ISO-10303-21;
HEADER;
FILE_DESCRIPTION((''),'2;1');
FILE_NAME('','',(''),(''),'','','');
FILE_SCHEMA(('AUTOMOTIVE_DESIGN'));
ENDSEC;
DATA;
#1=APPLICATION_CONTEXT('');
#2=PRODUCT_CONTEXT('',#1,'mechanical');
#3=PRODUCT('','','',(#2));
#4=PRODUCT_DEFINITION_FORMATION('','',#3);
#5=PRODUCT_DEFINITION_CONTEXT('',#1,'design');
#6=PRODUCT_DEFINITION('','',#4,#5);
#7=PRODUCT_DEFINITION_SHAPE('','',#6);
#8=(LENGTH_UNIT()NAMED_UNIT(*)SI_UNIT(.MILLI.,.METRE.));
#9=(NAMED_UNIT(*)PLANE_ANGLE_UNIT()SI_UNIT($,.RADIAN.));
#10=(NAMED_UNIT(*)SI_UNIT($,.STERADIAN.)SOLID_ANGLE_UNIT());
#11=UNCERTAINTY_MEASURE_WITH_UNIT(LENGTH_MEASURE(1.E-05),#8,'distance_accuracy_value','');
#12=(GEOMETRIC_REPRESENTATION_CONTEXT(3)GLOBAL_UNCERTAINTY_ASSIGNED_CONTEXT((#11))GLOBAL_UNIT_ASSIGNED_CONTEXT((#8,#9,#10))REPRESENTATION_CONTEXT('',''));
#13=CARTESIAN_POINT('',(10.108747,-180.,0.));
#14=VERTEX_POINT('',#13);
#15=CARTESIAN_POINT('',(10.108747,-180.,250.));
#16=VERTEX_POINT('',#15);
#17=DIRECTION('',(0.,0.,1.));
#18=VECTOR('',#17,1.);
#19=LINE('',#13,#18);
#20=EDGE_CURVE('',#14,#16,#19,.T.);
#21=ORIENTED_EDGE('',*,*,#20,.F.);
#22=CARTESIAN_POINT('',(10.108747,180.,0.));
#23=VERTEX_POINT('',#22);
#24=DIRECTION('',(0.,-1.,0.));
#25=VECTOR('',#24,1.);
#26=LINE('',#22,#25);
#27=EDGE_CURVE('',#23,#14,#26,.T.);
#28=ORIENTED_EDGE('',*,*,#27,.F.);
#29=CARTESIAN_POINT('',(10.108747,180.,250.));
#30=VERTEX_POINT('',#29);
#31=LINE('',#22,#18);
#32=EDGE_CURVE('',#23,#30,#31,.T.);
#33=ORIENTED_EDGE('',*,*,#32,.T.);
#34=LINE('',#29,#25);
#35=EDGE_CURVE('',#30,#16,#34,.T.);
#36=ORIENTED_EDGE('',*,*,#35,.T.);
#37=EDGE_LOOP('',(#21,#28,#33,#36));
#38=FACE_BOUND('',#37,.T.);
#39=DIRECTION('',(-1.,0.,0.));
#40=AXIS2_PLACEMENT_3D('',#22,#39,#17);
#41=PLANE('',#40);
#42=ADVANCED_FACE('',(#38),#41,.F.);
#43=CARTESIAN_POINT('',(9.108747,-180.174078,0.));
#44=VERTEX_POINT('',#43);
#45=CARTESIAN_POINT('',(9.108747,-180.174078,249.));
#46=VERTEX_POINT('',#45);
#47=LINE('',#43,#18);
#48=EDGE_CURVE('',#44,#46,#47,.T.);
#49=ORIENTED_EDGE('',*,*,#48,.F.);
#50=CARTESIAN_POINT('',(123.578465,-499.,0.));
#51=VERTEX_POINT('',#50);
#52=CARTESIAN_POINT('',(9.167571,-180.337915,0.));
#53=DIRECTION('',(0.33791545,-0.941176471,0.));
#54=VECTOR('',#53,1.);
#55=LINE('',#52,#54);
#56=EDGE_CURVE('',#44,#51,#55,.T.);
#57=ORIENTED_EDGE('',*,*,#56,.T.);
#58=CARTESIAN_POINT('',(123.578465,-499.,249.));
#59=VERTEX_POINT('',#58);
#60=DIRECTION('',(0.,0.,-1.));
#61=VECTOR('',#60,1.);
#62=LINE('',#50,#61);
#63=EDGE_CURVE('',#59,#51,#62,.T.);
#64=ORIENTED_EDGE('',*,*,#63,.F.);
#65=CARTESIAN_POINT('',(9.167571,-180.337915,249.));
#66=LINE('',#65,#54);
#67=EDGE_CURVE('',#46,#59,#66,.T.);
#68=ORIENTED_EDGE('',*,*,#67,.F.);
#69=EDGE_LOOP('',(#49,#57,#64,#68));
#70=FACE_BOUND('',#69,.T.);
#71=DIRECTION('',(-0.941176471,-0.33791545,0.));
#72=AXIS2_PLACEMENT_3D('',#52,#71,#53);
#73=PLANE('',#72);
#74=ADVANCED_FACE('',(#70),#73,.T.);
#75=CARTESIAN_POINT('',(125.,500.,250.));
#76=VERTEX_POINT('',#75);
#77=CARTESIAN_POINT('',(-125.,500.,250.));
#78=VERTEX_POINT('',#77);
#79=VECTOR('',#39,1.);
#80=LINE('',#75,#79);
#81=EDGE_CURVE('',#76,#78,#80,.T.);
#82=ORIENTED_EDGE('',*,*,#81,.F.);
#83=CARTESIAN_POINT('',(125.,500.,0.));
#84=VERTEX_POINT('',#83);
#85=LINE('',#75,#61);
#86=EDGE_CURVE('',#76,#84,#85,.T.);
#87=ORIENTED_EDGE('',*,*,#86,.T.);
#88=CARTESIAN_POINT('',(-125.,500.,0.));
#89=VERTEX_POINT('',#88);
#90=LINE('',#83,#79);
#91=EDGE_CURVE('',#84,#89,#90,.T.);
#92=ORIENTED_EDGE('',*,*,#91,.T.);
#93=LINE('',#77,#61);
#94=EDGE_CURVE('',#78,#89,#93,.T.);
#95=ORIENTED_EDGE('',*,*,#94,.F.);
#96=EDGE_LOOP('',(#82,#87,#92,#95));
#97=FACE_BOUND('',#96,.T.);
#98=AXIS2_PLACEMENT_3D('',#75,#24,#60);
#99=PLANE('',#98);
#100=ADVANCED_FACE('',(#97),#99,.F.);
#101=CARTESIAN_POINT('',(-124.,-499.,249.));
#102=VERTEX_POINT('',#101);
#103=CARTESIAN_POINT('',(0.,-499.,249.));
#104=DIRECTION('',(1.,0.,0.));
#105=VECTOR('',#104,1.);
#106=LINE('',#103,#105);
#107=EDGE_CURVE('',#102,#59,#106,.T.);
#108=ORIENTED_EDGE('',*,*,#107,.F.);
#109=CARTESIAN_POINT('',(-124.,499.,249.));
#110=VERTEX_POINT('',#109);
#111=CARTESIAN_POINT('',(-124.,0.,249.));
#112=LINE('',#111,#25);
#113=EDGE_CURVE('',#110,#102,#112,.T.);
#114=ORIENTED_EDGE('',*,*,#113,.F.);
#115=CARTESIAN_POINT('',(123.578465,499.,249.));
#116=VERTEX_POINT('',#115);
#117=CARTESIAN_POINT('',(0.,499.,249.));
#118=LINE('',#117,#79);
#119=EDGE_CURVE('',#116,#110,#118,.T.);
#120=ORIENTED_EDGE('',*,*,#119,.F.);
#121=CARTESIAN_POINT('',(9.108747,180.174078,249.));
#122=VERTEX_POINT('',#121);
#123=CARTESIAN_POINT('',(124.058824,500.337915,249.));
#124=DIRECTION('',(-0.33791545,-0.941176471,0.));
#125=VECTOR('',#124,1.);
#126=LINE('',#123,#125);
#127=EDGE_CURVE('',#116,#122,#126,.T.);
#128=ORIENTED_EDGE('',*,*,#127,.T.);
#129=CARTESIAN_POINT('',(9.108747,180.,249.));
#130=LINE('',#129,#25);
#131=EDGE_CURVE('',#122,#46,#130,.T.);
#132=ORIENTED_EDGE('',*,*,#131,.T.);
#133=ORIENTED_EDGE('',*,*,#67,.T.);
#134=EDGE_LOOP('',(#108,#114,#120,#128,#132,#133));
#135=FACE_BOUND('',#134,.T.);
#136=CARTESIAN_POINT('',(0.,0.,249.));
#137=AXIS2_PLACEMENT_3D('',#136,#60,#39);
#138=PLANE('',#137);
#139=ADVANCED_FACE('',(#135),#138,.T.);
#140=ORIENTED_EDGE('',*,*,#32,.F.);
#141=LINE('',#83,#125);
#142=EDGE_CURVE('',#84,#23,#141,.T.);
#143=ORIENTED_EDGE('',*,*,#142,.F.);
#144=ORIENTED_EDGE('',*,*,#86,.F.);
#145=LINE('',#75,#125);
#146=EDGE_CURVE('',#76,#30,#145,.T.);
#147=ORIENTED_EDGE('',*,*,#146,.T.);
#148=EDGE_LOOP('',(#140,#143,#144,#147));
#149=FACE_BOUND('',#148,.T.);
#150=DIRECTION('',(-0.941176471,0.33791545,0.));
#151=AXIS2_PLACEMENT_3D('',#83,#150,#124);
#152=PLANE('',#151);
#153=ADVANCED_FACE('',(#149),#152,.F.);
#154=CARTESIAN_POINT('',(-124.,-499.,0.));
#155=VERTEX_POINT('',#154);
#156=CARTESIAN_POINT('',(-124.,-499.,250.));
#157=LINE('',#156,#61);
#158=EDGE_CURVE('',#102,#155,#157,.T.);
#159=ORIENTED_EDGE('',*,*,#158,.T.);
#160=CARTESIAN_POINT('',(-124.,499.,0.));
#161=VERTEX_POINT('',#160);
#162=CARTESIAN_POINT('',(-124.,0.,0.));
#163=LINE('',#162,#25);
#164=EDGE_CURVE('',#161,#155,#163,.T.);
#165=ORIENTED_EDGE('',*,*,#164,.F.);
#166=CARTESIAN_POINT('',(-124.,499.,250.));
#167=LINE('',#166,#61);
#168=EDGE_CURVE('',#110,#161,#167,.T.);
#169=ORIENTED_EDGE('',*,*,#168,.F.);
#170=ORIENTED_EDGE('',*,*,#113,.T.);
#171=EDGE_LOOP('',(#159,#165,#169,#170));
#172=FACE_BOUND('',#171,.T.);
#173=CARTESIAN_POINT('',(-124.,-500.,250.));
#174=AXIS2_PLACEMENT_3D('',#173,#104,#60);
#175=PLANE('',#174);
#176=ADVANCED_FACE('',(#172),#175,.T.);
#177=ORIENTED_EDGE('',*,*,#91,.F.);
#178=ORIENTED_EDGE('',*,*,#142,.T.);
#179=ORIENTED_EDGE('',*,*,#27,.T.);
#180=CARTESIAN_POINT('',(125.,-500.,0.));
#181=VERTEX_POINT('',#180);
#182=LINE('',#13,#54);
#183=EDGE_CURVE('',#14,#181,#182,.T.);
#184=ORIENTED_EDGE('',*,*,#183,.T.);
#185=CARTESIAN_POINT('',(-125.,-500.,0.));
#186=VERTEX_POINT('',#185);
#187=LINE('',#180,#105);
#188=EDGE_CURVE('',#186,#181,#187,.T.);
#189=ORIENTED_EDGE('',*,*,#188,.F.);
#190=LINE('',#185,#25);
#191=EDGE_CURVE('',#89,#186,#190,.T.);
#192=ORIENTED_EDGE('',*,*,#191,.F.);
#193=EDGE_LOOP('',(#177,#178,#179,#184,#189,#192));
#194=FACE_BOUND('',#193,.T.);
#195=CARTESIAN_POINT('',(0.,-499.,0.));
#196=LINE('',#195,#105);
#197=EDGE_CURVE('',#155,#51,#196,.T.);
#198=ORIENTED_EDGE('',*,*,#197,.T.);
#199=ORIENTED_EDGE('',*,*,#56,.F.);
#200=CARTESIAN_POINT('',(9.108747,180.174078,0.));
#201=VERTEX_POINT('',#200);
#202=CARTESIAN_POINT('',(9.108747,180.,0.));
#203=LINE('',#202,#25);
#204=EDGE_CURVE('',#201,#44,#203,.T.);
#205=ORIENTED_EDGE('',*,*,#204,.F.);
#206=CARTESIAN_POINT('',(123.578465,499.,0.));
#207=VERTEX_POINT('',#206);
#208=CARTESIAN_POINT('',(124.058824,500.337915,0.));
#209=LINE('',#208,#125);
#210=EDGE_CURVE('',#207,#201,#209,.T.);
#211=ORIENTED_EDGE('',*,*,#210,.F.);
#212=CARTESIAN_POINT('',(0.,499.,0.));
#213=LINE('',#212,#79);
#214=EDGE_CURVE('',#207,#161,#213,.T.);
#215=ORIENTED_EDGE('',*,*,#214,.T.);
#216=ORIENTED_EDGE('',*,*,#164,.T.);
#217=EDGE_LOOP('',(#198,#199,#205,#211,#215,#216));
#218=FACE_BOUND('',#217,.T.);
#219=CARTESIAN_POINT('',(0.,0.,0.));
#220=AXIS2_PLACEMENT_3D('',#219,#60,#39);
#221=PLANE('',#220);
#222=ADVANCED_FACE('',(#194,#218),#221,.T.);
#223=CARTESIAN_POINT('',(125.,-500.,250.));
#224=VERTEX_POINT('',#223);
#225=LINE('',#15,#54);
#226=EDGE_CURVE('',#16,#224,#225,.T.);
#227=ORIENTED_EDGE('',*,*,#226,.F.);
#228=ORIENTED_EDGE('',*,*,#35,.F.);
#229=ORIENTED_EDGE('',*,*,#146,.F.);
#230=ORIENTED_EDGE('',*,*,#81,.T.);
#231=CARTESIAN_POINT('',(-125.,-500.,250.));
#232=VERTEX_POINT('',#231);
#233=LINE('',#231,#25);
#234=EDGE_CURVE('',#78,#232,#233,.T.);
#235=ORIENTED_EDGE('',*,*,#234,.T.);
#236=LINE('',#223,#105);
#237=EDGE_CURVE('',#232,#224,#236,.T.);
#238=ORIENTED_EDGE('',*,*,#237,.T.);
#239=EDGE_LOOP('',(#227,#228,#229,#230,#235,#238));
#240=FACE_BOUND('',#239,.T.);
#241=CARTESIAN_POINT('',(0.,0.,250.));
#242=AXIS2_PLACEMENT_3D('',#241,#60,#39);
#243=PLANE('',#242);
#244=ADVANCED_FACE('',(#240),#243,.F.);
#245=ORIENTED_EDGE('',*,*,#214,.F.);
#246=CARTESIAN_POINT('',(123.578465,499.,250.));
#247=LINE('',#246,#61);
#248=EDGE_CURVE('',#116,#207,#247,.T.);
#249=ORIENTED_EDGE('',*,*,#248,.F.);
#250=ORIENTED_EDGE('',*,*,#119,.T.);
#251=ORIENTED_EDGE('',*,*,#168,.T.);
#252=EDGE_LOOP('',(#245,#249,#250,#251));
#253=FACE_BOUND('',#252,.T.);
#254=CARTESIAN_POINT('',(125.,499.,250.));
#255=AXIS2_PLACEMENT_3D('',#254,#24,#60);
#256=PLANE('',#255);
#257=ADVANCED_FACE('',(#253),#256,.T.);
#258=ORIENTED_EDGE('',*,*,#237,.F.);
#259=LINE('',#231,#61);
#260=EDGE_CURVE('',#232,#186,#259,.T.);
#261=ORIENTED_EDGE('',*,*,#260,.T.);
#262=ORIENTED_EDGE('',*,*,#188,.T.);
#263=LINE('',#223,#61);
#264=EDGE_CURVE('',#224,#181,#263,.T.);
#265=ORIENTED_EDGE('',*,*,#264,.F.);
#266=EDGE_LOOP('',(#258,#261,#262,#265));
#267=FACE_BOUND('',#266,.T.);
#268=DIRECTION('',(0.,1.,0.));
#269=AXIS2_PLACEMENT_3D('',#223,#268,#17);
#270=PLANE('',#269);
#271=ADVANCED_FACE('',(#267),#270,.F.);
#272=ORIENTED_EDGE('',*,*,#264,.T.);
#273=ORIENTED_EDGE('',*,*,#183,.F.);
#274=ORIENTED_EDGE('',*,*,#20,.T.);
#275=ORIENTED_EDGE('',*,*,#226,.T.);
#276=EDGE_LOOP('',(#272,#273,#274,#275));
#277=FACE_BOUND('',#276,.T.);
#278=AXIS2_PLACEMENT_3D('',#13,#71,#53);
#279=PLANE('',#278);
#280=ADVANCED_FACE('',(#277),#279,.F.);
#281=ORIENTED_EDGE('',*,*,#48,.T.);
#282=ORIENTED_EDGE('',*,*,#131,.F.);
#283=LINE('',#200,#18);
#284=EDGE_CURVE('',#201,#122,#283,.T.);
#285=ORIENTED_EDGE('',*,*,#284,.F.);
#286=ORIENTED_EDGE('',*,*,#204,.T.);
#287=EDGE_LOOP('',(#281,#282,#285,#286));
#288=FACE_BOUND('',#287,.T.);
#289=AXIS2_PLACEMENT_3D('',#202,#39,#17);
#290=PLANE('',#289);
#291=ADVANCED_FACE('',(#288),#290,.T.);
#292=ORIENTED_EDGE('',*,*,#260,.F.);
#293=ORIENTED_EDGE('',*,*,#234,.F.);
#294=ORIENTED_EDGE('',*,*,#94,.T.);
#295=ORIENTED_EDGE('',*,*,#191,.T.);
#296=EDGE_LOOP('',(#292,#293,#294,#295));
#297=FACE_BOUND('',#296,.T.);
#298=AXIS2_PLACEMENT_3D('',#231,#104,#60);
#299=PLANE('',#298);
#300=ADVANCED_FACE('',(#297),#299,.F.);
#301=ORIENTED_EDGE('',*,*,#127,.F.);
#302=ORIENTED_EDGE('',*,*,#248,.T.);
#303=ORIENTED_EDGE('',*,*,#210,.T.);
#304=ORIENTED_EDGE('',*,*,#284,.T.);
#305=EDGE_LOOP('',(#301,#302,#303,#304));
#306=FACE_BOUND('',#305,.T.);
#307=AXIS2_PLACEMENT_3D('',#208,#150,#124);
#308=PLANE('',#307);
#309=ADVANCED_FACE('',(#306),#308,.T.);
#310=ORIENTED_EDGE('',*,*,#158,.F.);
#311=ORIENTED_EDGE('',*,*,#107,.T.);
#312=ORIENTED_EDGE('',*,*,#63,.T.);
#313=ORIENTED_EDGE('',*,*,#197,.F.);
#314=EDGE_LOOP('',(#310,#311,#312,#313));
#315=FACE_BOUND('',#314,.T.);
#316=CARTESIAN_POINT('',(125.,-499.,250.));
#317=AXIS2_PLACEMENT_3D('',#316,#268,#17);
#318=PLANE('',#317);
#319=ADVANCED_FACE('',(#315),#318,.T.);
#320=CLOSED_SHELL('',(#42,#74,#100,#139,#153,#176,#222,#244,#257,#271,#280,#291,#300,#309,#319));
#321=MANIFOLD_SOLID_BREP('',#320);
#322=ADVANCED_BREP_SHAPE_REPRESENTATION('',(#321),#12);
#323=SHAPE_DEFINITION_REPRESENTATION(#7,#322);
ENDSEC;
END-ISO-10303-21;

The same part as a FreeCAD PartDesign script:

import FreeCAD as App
import Part
import Sketcher


def faces_at(feature, points):
    """Names of the faces that lie closest to the given points."""
    faces = feature.Shape.Faces
    near = lambda p: min(range(len(faces)), key=lambda i: faces[i].distToShape(Part.Vertex(*p))[0])
    return sorted({f"Face{near(p) + 1}" for p in points})

doc = App.newDocument("Part")
params = doc.addObject("Spreadsheet::Sheet", "Params")
for row, (alias, value) in enumerate([
    ("sketch1_width", "250 mm"),
    ("sketch1_height", "1000 mm"),
    ("pad1_length", "250 mm"),
    ("sketch2_height", "360 mm"),
    ("sketch2_height2", "1000 mm"),
    ("sketch2_length", "340 mm"),
    ("thickness_wall", "1 mm"),
], start=1):
    params.set(f"A{row}", alias)
    params.set(f"B{row}", "=" + value)
    params.setAlias(f"B{row}", alias)

body = doc.addObject("PartDesign::Body", "Body")

# Sketch on XY plane
sketch1 = body.newObject("Sketcher::SketchObject", "Sketch")
sketch1.AttachmentSupport = (doc.getObject("XY_Plane"), [""])
sketch1.MapMode = "FlatFace"
sketch1.addGeometry([
    Part.LineSegment(App.Vector(-125, -500, 0), App.Vector(125, -500, 0)),
    Part.LineSegment(App.Vector(125, -500, 0), App.Vector(125, 500, 0)),
    Part.LineSegment(App.Vector(125, 500, 0), App.Vector(-125, 500, 0)),
    Part.LineSegment(App.Vector(-125, 500, 0), App.Vector(-125, -500, 0)),
], False)
sketch1.addConstraint([
    Sketcher.Constraint("Coincident", 0, 2, 1, 1),
    Sketcher.Constraint("Coincident", 1, 2, 2, 1),
    Sketcher.Constraint("Coincident", 2, 2, 3, 1),
    Sketcher.Constraint("Coincident", 3, 2, 0, 1),
    Sketcher.Constraint("Horizontal", 0),
    Sketcher.Constraint("Vertical", 1),
    Sketcher.Constraint("Horizontal", 2),
    Sketcher.Constraint("Vertical", 3),
    Sketcher.Constraint("Symmetric", 0, 2, 2, 2, -1, 1),
    Sketcher.Constraint("DistanceX", 0, 1, 0, 2, 250.0),
    Sketcher.Constraint("DistanceY", 1, 1, 1, 2, 1000.0),
])
sketch1.setExpression("Constraints[9]", "Params.sketch1_width")
sketch1.setExpression("Constraints[10]", "Params.sketch1_height")
pad1 = body.newObject("PartDesign::Pad", "Pad")
pad1.Profile = sketch1
pad1.setExpression("Length", "Params.pad1_length")

# Sketch on XY plane
sketch2 = body.newObject("Sketcher::SketchObject", "Sketch001")
sketch2.AttachmentSupport = (doc.getObject("XY_Plane"), [""])
sketch2.MapMode = "FlatFace"
sketch2.AttachmentOffset = App.Placement(App.Vector(0, 0, 250), App.Rotation())
sketch2.addGeometry([
    Part.LineSegment(App.Vector(125, 500, 0), App.Vector(10, 180, 0)),
    Part.LineSegment(App.Vector(10, 180, 0), App.Vector(10, -180, 0)),
    Part.LineSegment(App.Vector(10, -180, 0), App.Vector(125, -500, 0)),
    Part.LineSegment(App.Vector(125, -500, 0), App.Vector(125, 500, 0)),
], False)
sketch2.addConstraint([
    Sketcher.Constraint("Coincident", 0, 2, 1, 1),
    Sketcher.Constraint("Coincident", 1, 2, 2, 1),
    Sketcher.Constraint("Coincident", 2, 2, 3, 1),
    Sketcher.Constraint("Coincident", 3, 2, 0, 1),
    Sketcher.Constraint("Vertical", 1),
    Sketcher.Constraint("Vertical", 3),
    Sketcher.Constraint("Equal", 0, 2),
    Sketcher.Constraint("DistanceY", 1, 2, 1, 1, 360.0),
    Sketcher.Constraint("DistanceY", 3, 1, 3, 2, 1000.0),
    Sketcher.Constraint("Distance", 0, 340.0),
    Sketcher.Constraint("DistanceY", -1, 1, 0, 2, 180.0),
    Sketcher.Constraint("DistanceX", -1, 1, 2, 2, 125.0),
])
sketch2.setExpression("Constraints[7]", "Params.sketch2_height")
sketch2.setExpression("Constraints[8]", "Params.sketch2_height2")
sketch2.setExpression("Constraints[9]", "Params.sketch2_length")
pocket1 = body.newObject("PartDesign::Pocket", "Pocket")
pocket1.Profile = sketch2
pocket1.Type = "ThroughAll"
doc.recompute()

thickness = body.newObject("PartDesign::Thickness", "Thickness")
thickness.Base = (pocket1, faces_at(pocket1, [(0, 0, 0)]))
thickness.setExpression("Value", "Params.thickness_wall")
thickness.Reversed = True
thickness.Join = "Intersection"

doc.recompute()
